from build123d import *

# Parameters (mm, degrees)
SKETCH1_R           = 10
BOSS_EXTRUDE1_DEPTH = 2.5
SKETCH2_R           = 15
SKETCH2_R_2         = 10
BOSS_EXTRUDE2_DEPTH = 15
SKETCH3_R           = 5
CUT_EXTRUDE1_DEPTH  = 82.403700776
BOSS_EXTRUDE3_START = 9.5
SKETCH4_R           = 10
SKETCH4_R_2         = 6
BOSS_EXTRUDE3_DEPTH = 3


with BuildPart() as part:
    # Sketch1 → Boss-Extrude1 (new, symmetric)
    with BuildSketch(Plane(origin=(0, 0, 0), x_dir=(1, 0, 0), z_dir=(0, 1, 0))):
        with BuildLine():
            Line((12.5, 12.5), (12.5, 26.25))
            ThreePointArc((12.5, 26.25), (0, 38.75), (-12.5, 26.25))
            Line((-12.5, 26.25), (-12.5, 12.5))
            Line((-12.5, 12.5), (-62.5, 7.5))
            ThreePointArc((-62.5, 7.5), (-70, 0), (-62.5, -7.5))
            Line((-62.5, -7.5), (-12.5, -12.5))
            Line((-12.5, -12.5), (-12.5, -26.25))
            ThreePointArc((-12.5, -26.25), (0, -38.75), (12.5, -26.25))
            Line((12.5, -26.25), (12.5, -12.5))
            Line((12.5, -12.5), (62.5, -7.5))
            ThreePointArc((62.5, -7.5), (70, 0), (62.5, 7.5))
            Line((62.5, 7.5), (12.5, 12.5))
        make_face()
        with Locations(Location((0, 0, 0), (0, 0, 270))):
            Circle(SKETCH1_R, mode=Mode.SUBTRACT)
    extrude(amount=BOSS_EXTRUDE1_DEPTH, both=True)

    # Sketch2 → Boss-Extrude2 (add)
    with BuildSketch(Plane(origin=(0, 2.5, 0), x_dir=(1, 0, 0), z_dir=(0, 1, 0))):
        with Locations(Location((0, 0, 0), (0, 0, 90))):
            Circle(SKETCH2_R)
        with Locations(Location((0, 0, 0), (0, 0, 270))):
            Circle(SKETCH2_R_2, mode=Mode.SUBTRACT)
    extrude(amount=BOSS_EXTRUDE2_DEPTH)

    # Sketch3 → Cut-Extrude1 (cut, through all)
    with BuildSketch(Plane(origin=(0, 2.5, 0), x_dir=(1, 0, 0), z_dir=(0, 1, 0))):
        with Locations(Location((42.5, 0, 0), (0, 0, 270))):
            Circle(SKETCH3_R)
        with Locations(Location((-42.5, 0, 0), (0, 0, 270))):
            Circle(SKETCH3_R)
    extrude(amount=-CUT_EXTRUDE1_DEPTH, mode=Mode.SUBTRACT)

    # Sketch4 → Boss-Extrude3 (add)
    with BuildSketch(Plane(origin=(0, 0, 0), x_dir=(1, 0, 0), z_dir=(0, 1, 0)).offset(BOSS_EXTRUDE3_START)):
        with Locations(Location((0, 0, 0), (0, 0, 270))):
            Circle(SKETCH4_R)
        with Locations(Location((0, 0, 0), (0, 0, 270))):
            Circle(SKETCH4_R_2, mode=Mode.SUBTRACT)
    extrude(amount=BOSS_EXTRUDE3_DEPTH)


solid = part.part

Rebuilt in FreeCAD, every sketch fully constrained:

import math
import FreeCAD as App
import Part
import Sketcher
from FreeCAD import Vector

doc = App.newDocument("Part")
body = doc.addObject("PartDesign::Body", "Body")

# Sketch on XZ plane
sketch1 = body.newObject("Sketcher::SketchObject", "Sketch")
sketch1.AttachmentSupport = (doc.getObject("XZ_Plane"), [""])
sketch1.MapMode = "FlatFace"
sketch1.addGeometry(Part.LineSegment(Vector(12, -12, 0), Vector(12, -26, 0)), False)
sketch1.addGeometry(Part.ArcOfCircle(Part.Circle(Vector(0, -26, 0), Vector(0, 0, 1), 12), math.radians(180), math.radians(360)), False)
sketch1.addGeometry(Part.LineSegment(Vector(-12, -26, 0), Vector(-12, -12, 0)), False)
sketch1.addGeometry(Part.LineSegment(Vector(-12, -12, 0), Vector(-62, -8, 0)), False)
sketch1.addGeometry(Part.ArcOfCircle(Part.Circle(Vector(-62, 0, 0), Vector(0, 0, 1), 8), math.radians(90), math.radians(270)), False)
sketch1.addGeometry(Part.LineSegment(Vector(-62, 8, 0), Vector(-12, 12, 0)), False)
sketch1.addGeometry(Part.LineSegment(Vector(-12, 12, 0), Vector(-12, 26, 0)), False)
sketch1.addGeometry(Part.ArcOfCircle(Part.Circle(Vector(0, 26, 0), Vector(0, 0, 1), 12), math.radians(0), math.radians(180)), False)
sketch1.addGeometry(Part.LineSegment(Vector(12, 26, 0), Vector(12, 12, 0)), False)
sketch1.addGeometry(Part.LineSegment(Vector(12, 12, 0), Vector(62, 8, 0)), False)
sketch1.addGeometry(Part.ArcOfCircle(Part.Circle(Vector(62, 0, 0), Vector(0, 0, 1), 8), math.radians(-90), math.radians(90)), False)
sketch1.addGeometry(Part.LineSegment(Vector(62, -8, 0), Vector(12, -12, 0)), False)
sketch1.addGeometry(Part.Circle(Vector(0, 0, 0), Vector(0, 0, 1), 10), False)
sketch1.addConstraint(Sketcher.Constraint("Tangent", 0, 2, 1, 2))
sketch1.addConstraint(Sketcher.Constraint("Tangent", 1, 1, 2, 1))
sketch1.addConstraint(Sketcher.Constraint("Coincident", 2, 2, 3, 1))
sketch1.addConstraint(Sketcher.Constraint("Coincident", 3, 2, 4, 2))
sketch1.addConstraint(Sketcher.Constraint("Coincident", 4, 1, 5, 1))
sketch1.addConstraint(Sketcher.Constraint("Coincident", 5, 2, 6, 1))
sketch1.addConstraint(Sketcher.Constraint("Tangent", 6, 2, 7, 2))
sketch1.addConstraint(Sketcher.Constraint("Tangent", 7, 1, 8, 1))
sketch1.addConstraint(Sketcher.Constraint("Coincident", 8, 2, 9, 1))
sketch1.addConstraint(Sketcher.Constraint("Coincident", 9, 2, 10, 2))
sketch1.addConstraint(Sketcher.Constraint("Coincident", 10, 1, 11, 1))
sketch1.addConstraint(Sketcher.Constraint("Coincident", 11, 2, 0, 1))
sketch1.addConstraint(Sketcher.Constraint("Vertical", 0))
sketch1.addConstraint(Sketcher.Constraint("Vertical", 2))
sketch1.addConstraint(Sketcher.Constraint("Vertical", 6))
sketch1.addConstraint(Sketcher.Constraint("Vertical", 8))
sketch1.addConstraint(Sketcher.Constraint("Coincident", 12, 3, -1, 1))
sketch1.addConstraint(Sketcher.Constraint("Equal", 1, 7))
sketch1.addConstraint(Sketcher.Constraint("Equal", 4, 10))
sketch1.addConstraint(Sketcher.Constraint("Symmetric", 1, 3, 7, 3, -1, 1))
sketch1.addConstraint(Sketcher.Constraint("Symmetric", 4, 3, 10, 3, -1, 1))
sketch1.addConstraint(Sketcher.Constraint("Symmetric", 5, 2, 8, 2, -2))
sketch1.addConstraint(Sketcher.Constraint("Symmetric", 4, 1, 9, 2, -2))
sketch1.addConstraint(Sketcher.Constraint("Parallel", 3, 9))
sketch1.addConstraint(Sketcher.Constraint("Parallel", 5, 11))
sketch1.addConstraint(Sketcher.Constraint("Horizontal", 2, 2, 11, 2))
sketch1.addConstraint(Sketcher.Constraint("Vertical", 4, 3, 3, 2))
sketch1.addConstraint(Sketcher.Constraint("Vertical", 3, 2, 4, 1))
sketch1.addConstraint(Sketcher.Constraint("Diameter", 12, 20.0))
sketch1.addConstraint(Sketcher.Constraint("Radius", 1, 12.5))
sketch1.addConstraint(Sketcher.Constraint("Radius", 4, 7.5))
sketch1.addConstraint(Sketcher.Constraint("DistanceX", 4, 3, 10, 3, 125.0))
sketch1.addConstraint(Sketcher.Constraint("DistanceY", 2, 2, 3, 2, 5.0))
sketch1.addConstraint(Sketcher.Constraint("DistanceY", 0, 2, 0, 1, 13.75))
pad1 = body.newObject("PartDesign::Pad", "Pad")
pad1.Profile = sketch1
pad1.Length = 5
pad1.Midplane = True

# Sketch on XZ plane
sketch2 = body.newObject("Sketcher::SketchObject", "Sketch001")
sketch2.AttachmentSupport = (doc.getObject("XZ_Plane"), [""])
sketch2.MapMode = "FlatFace"
sketch2.AttachmentOffset = App.Placement(Vector(0, 0, -2.5), App.Rotation())
sketch2.addGeometry(Part.Circle(Vector(0, 0, 0), Vector(0, 0, 1), 15), False)
sketch2.addGeometry(Part.Circle(Vector(0, 0, 0), Vector(0, 0, 1), 10), False)
sketch2.addConstraint(Sketcher.Constraint("Coincident", 0, 3, -1, 1))
sketch2.addConstraint(Sketcher.Constraint("Coincident", 1, 3, -1, 1))
sketch2.addConstraint(Sketcher.Constraint("Diameter", 0, 30.0))
sketch2.addConstraint(Sketcher.Constraint("Diameter", 1, 20.0))
pad2 = body.newObject("PartDesign::Pad", "Pad001")
pad2.Profile = sketch2
pad2.Length = 15
pad2.Reversed = True

# Sketch on XZ plane
sketch3 = body.newObject("Sketcher::SketchObject", "Sketch002")
sketch3.AttachmentSupport = (doc.getObject("XZ_Plane"), [""])
sketch3.MapMode = "FlatFace"
sketch3.AttachmentOffset = App.Placement(Vector(0, 0, -2.5), App.Rotation())
sketch3.addGeometry(Part.Circle(Vector(42, 0, 0), Vector(0, 0, 1), 5), False)
sketch3.addGeometry(Part.Circle(Vector(-42, 0, 0), Vector(0, 0, 1), 5), False)
sketch3.addConstraint(Sketcher.Constraint("Equal", 0, 1))
sketch3.addConstraint(Sketcher.Constraint("Symmetric", 0, 3, 1, 3, -1, 1))
sketch3.addConstraint(Sketcher.Constraint("PointOnObject", 0, 3, -1))
sketch3.addConstraint(Sketcher.Constraint("Diameter", 0, 10.0))
sketch3.addConstraint(Sketcher.Constraint("DistanceX", 1, 3, 0, 3, 85.0))
pocket1 = body.newObject("PartDesign::Pocket", "Pocket")
pocket1.Profile = sketch3
pocket1.Type = "ThroughAll"
pocket1.Reversed = True

# Sketch on XZ plane
sketch4 = body.newObject("Sketcher::SketchObject", "Sketch003")
sketch4.AttachmentSupport = (doc.getObject("XZ_Plane"), [""])
sketch4.MapMode = "FlatFace"
sketch4.AttachmentOffset = App.Placement(Vector(0, 0, -9.5), App.Rotation())
sketch4.addGeometry(Part.Circle(Vector(0, 0, 0), Vector(0, 0, 1), 10), False)
sketch4.addGeometry(Part.Circle(Vector(0, 0, 0), Vector(0, 0, 1), 6), False)
sketch4.addConstraint(Sketcher.Constraint("Coincident", 0, 3, -1, 1))
sketch4.addConstraint(Sketcher.Constraint("Coincident", 1, 3, -1, 1))
sketch4.addConstraint(Sketcher.Constraint("Diameter", 0, 20.0))
sketch4.addConstraint(Sketcher.Constraint("Diameter", 1, 12.0))
pad3 = body.newObject("PartDesign::Pad", "Pad002")
pad3.Profile = sketch4
pad3.Length = 3
pad3.Reversed = True

doc.recompute()
